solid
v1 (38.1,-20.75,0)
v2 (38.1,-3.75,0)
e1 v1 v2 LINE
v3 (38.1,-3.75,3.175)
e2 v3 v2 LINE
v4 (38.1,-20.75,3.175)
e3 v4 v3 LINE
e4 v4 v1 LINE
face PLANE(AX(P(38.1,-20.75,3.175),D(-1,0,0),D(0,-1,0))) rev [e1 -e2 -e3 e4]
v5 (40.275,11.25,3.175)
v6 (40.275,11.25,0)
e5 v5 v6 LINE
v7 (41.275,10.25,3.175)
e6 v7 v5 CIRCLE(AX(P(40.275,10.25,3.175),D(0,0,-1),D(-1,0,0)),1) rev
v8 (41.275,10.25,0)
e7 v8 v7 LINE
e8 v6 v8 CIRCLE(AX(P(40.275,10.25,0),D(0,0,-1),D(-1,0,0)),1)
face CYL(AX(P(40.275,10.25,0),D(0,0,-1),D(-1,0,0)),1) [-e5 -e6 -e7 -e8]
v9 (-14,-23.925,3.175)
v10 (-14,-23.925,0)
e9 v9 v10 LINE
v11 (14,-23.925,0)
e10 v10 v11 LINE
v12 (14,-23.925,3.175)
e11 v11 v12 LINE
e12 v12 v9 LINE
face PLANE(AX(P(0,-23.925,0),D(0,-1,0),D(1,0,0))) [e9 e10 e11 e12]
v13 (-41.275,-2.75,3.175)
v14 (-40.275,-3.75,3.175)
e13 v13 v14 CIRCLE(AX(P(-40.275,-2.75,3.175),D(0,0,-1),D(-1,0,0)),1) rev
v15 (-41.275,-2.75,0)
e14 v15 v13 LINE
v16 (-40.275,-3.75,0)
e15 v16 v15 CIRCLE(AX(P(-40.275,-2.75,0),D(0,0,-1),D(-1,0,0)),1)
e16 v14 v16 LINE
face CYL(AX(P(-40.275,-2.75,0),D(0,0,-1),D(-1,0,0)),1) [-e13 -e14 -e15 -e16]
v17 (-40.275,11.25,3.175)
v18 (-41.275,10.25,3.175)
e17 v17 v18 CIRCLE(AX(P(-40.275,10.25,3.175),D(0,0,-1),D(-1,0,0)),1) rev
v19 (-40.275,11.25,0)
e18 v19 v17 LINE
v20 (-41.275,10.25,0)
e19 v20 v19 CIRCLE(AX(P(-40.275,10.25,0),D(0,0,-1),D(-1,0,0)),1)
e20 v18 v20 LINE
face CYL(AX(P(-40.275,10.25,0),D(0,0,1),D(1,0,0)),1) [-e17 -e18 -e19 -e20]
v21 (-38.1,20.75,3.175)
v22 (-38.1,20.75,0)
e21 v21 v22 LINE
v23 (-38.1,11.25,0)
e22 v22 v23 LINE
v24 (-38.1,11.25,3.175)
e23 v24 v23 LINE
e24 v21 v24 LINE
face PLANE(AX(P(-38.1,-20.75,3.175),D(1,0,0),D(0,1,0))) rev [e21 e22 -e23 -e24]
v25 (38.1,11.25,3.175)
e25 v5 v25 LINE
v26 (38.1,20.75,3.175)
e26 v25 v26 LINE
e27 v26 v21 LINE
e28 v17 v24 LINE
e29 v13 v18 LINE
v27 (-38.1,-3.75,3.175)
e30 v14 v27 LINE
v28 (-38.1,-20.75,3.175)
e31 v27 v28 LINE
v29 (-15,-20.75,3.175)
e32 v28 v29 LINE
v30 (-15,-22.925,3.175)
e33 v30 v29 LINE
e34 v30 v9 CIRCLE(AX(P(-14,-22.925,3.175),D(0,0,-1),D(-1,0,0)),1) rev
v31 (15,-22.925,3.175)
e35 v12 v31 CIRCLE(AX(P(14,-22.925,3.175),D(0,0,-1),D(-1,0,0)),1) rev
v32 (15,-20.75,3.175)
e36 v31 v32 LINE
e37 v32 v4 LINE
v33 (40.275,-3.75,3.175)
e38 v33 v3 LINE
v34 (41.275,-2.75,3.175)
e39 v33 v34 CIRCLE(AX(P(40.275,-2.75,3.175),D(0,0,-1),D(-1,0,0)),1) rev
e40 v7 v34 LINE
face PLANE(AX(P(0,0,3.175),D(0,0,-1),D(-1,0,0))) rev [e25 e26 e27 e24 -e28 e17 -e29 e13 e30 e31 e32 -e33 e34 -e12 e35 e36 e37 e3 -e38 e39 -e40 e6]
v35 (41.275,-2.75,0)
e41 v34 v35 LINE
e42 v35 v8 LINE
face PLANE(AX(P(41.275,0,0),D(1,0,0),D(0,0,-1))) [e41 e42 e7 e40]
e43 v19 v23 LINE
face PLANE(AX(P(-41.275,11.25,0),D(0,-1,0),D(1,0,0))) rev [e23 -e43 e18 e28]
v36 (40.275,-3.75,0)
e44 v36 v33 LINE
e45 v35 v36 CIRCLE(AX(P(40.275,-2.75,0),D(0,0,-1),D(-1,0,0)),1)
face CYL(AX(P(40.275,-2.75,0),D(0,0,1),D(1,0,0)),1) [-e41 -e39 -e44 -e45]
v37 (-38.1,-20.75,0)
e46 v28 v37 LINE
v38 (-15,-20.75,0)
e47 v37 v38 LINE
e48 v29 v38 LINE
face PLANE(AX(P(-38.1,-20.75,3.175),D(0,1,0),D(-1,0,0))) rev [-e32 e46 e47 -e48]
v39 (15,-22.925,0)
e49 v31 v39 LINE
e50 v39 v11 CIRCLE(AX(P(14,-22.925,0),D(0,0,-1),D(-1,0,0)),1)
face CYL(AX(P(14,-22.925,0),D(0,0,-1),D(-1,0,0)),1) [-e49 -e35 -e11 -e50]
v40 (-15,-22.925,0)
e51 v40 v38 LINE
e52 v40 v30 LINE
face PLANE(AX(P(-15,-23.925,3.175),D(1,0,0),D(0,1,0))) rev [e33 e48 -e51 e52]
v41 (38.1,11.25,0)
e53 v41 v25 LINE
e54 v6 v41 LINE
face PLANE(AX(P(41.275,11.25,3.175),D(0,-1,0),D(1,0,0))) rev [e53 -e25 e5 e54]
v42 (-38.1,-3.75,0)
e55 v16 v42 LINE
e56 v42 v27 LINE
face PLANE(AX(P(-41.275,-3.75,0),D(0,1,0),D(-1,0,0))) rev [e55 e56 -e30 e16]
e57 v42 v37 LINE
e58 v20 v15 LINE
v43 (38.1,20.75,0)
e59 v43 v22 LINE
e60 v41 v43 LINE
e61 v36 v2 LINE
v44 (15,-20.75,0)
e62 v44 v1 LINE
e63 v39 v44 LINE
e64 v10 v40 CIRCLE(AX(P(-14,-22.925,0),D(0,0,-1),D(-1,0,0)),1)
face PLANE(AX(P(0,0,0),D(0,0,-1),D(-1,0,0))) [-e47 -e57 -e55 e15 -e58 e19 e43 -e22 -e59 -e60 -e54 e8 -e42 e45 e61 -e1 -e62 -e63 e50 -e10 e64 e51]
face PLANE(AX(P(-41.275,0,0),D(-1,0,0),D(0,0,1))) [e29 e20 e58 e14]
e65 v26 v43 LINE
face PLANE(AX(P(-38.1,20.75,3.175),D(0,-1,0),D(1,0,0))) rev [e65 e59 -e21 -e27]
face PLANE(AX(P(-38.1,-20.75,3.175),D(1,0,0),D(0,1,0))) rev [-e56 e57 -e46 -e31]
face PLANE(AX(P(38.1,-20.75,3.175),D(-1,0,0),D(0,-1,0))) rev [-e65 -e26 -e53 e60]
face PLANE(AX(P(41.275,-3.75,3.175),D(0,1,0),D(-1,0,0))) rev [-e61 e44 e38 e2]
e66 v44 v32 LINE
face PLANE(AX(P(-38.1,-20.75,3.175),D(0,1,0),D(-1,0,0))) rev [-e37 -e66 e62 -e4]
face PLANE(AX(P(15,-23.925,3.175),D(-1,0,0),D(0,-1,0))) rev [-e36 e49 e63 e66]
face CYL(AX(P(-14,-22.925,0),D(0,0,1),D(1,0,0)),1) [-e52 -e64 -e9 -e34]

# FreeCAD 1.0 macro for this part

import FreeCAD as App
import Part
import Sketcher

V = App.Vector
Q = App.Units.Quantity


def edges_at(feature, points):
    """Names of the edges that pass closest to the given points."""
    edges = feature.Shape.Edges
    near = lambda p: min(range(len(edges)), key=lambda i: edges[i].distToShape(Part.Vertex(*p))[0])
    return sorted({f"Edge{near(p) + 1}" for p in points})

doc = App.newDocument("Part")
body = doc.addObject("PartDesign::Body", "Body")

# Sketch on XY plane
sketch1 = body.newObject("Sketcher::SketchObject", "Sketch")
sketch1.AttachmentSupport = (doc.getObject("XY_Plane"), [""])
sketch1.MapMode = "FlatFace"
sketch1.addGeometry(Part.LineSegment(V(-38.1, 20.75, 0), V(-38.1, -20.75, 0)), False)
sketch1.addGeometry(Part.LineSegment(V(-38.1, -20.75, 0), V(38.1, -20.75, 0)), False)
sketch1.addGeometry(Part.LineSegment(V(38.1, -20.75, 0), V(38.1, 20.75, 0)), False)
sketch1.addGeometry(Part.LineSegment(V(38.1, 20.75, 0), V(-38.1, 20.75, 0)), False)
sketch1.addConstraint(Sketcher.Constraint("Coincident", 0, 2, 1, 1))
sketch1.addConstraint(Sketcher.Constraint("Coincident", 1, 2, 2, 1))
sketch1.addConstraint(Sketcher.Constraint("Coincident", 2, 2, 3, 1))
sketch1.addConstraint(Sketcher.Constraint("Coincident", 3, 2, 0, 1))
sketch1.addConstraint(Sketcher.Constraint("Vertical", 0))
sketch1.addConstraint(Sketcher.Constraint("Horizontal", 1))
sketch1.addConstraint(Sketcher.Constraint("Vertical", 2))
sketch1.addConstraint(Sketcher.Constraint("Horizontal", 3))
sketch1.addConstraint(Sketcher.Constraint("Symmetric", 0, 2, 2, 2, -1, 1))
sketch1.addConstraint(Sketcher.Constraint("DistanceX", 1, 1, 1, 2, Q("76.2 mm")))
sketch1.addConstraint(Sketcher.Constraint("DistanceY", 0, 2, 0, 1, Q("41.5 mm")))
pad1 = body.newObject("PartDesign::Pad", "Pad")
pad1.Profile = sketch1
pad1.Length = 3.175

# Sketch on YZ plane
sketch2 = body.newObject("Sketcher::SketchObject", "Sketch001")
sketch2.AttachmentSupport = (doc.getObject("YZ_Plane"), [""])
sketch2.MapMode = "FlatFace"
sketch2.AttachmentOffset = App.Placement(V(0, 0, 38.1), App.Rotation())
sketch2.addGeometry(Part.LineSegment(V(11.25, 3.175, 0), V(-3.75, 3.175, 0)), False)
sketch2.addGeometry(Part.LineSegment(V(-3.75, 3.175, 0), V(-3.75, 0, 0)), False)
sketch2.addGeometry(Part.LineSegment(V(-3.75, 0, 0), V(11.25, 0, 0)), False)
sketch2.addGeometry(Part.LineSegment(V(11.25, 0, 0), V(11.25, 3.175, 0)), False)
sketch2.addConstraint(Sketcher.Constraint("Coincident", 0, 2, 1, 1))
sketch2.addConstraint(Sketcher.Constraint("Coincident", 1, 2, 2, 1))
sketch2.addConstraint(Sketcher.Constraint("Coincident", 2, 2, 3, 1))
sketch2.addConstraint(Sketcher.Constraint("Coincident", 3, 2, 0, 1))
sketch2.addConstraint(Sketcher.Constraint("Horizontal", 0))
sketch2.addConstraint(Sketcher.Constraint("Vertical", 1))
sketch2.addConstraint(Sketcher.Constraint("Horizontal", 2))
sketch2.addConstraint(Sketcher.Constraint("Vertical", 3))
sketch2.addConstraint(Sketcher.Constraint("PointOnObject", 1, 2, -1))
sketch2.addConstraint(Sketcher.Constraint("DistanceX", 0, 2, 0, 1, Q("15 mm")))
sketch2.addConstraint(Sketcher.Constraint("DistanceY", 1, 2, 1, 1, Q("3.175 mm")))
sketch2.addConstraint(Sketcher.Constraint("DistanceX", 0, 2, -1, 1, Q("3.75 mm")))
pad2 = body.newObject("PartDesign::Pad", "Pad001")
pad2.Profile = sketch2
pad2.Length = 3.175

# Sketch on XZ plane
sketch3 = body.newObject("Sketcher::SketchObject", "Sketch002")
sketch3.AttachmentSupport = (doc.getObject("XZ_Plane"), [""])
sketch3.MapMode = "FlatFace"
sketch3.AttachmentOffset = App.Placement(V(0, 0, 20.75), App.Rotation())
sketch3.addGeometry(Part.LineSegment(V(-15, 3.175, 0), V(-15, 0, 0)), False)
sketch3.addGeometry(Part.LineSegment(V(-15, 0, 0), V(15, 0, 0)), False)
sketch3.addGeometry(Part.LineSegment(V(15, 0, 0), V(15, 3.175, 0)), False)
sketch3.addGeometry(Part.LineSegment(V(15, 3.175, 0), V(-15, 3.175, 0)), False)
sketch3.addConstraint(Sketcher.Constraint("Coincident", 0, 2, 1, 1))
sketch3.addConstraint(Sketcher.Constraint("Coincident", 1, 2, 2, 1))
sketch3.addConstraint(Sketcher.Constraint("Coincident", 2, 2, 3, 1))
sketch3.addConstraint(Sketcher.Constraint("Coincident", 3, 2, 0, 1))
sketch3.addConstraint(Sketcher.Constraint("Vertical", 0))
sketch3.addConstraint(Sketcher.Constraint("Horizontal", 1))
sketch3.addConstraint(Sketcher.Constraint("Vertical", 2))
sketch3.addConstraint(Sketcher.Constraint("Horizontal", 3))
sketch3.addConstraint(Sketcher.Constraint("Symmetric", 0, 2, 1, 2, -1, 1))
sketch3.addConstraint(Sketcher.Constraint("DistanceX", 1, 1, 1, 2, Q("30 mm")))
sketch3.addConstraint(Sketcher.Constraint("DistanceY", 0, 2, 0, 1, Q("3.175 mm")))
pad3 = body.newObject("PartDesign::Pad", "Pad002")
pad3.Profile = sketch3
pad3.Length = 3.175

# Sketch on YZ plane
sketch4 = body.newObject("Sketcher::SketchObject", "Sketch003")
sketch4.AttachmentSupport = (doc.getObject("YZ_Plane"), [""])
sketch4.MapMode = "FlatFace"
sketch4.AttachmentOffset = App.Placement(V(0, 0, -38.1), App.Rotation())
sketch4.addGeometry(Part.LineSegment(V(11.25, 0, 0), V(-3.75, 0, 0)), False)
sketch4.addGeometry(Part.LineSegment(V(-3.75, 0, 0), V(-3.75, 3.175, 0)), False)
sketch4.addGeometry(Part.LineSegment(V(-3.75, 3.175, 0), V(11.25, 3.175, 0)), False)
sketch4.addGeometry(Part.LineSegment(V(11.25, 3.175, 0), V(11.25, 0, 0)), False)
sketch4.addConstraint(Sketcher.Constraint("Coincident", 0, 2, 1, 1))
sketch4.addConstraint(Sketcher.Constraint("Coincident", 1, 2, 2, 1))
sketch4.addConstraint(Sketcher.Constraint("Coincident", 2, 2, 3, 1))
sketch4.addConstraint(Sketcher.Constraint("Coincident", 3, 2, 0, 1))
sketch4.addConstraint(Sketcher.Constraint("Horizontal", 0))
sketch4.addConstraint(Sketcher.Constraint("Vertical", 1))
sketch4.addConstraint(Sketcher.Constraint("Horizontal", 2))
sketch4.addConstraint(Sketcher.Constraint("Vertical", 3))
sketch4.addConstraint(Sketcher.Constraint("PointOnObject", 0, 2, -1))
sketch4.addConstraint(Sketcher.Constraint("DistanceX", 0, 2, 0, 1, Q("15 mm")))
sketch4.addConstraint(Sketcher.Constraint("DistanceY", 1, 1, 1, 2, Q("3.175 mm")))
sketch4.addConstraint(Sketcher.Constraint("DistanceX", 0, 2, -1, 1, Q("3.75 mm")))
pad4 = body.newObject("PartDesign::Pad", "Pad003")
pad4.Profile = sketch4
pad4.Length = 3.175
pad4.Reversed = True
doc.recompute()

fillet = body.newObject("PartDesign::Fillet", "Fillet")
fillet.Base = (pad4, edges_at(pad4, [
    (41.275, -3.75, 1.587),
    (41.275, 11.25, 1.587),
    (-15, -23.925, 1.587),
    (15, -23.925, 1.587),
    (-41.275, -3.75, 1.587),
    (-41.275, 11.25, 1.587),
]))
fillet.Radius = 1

doc.recompute()
